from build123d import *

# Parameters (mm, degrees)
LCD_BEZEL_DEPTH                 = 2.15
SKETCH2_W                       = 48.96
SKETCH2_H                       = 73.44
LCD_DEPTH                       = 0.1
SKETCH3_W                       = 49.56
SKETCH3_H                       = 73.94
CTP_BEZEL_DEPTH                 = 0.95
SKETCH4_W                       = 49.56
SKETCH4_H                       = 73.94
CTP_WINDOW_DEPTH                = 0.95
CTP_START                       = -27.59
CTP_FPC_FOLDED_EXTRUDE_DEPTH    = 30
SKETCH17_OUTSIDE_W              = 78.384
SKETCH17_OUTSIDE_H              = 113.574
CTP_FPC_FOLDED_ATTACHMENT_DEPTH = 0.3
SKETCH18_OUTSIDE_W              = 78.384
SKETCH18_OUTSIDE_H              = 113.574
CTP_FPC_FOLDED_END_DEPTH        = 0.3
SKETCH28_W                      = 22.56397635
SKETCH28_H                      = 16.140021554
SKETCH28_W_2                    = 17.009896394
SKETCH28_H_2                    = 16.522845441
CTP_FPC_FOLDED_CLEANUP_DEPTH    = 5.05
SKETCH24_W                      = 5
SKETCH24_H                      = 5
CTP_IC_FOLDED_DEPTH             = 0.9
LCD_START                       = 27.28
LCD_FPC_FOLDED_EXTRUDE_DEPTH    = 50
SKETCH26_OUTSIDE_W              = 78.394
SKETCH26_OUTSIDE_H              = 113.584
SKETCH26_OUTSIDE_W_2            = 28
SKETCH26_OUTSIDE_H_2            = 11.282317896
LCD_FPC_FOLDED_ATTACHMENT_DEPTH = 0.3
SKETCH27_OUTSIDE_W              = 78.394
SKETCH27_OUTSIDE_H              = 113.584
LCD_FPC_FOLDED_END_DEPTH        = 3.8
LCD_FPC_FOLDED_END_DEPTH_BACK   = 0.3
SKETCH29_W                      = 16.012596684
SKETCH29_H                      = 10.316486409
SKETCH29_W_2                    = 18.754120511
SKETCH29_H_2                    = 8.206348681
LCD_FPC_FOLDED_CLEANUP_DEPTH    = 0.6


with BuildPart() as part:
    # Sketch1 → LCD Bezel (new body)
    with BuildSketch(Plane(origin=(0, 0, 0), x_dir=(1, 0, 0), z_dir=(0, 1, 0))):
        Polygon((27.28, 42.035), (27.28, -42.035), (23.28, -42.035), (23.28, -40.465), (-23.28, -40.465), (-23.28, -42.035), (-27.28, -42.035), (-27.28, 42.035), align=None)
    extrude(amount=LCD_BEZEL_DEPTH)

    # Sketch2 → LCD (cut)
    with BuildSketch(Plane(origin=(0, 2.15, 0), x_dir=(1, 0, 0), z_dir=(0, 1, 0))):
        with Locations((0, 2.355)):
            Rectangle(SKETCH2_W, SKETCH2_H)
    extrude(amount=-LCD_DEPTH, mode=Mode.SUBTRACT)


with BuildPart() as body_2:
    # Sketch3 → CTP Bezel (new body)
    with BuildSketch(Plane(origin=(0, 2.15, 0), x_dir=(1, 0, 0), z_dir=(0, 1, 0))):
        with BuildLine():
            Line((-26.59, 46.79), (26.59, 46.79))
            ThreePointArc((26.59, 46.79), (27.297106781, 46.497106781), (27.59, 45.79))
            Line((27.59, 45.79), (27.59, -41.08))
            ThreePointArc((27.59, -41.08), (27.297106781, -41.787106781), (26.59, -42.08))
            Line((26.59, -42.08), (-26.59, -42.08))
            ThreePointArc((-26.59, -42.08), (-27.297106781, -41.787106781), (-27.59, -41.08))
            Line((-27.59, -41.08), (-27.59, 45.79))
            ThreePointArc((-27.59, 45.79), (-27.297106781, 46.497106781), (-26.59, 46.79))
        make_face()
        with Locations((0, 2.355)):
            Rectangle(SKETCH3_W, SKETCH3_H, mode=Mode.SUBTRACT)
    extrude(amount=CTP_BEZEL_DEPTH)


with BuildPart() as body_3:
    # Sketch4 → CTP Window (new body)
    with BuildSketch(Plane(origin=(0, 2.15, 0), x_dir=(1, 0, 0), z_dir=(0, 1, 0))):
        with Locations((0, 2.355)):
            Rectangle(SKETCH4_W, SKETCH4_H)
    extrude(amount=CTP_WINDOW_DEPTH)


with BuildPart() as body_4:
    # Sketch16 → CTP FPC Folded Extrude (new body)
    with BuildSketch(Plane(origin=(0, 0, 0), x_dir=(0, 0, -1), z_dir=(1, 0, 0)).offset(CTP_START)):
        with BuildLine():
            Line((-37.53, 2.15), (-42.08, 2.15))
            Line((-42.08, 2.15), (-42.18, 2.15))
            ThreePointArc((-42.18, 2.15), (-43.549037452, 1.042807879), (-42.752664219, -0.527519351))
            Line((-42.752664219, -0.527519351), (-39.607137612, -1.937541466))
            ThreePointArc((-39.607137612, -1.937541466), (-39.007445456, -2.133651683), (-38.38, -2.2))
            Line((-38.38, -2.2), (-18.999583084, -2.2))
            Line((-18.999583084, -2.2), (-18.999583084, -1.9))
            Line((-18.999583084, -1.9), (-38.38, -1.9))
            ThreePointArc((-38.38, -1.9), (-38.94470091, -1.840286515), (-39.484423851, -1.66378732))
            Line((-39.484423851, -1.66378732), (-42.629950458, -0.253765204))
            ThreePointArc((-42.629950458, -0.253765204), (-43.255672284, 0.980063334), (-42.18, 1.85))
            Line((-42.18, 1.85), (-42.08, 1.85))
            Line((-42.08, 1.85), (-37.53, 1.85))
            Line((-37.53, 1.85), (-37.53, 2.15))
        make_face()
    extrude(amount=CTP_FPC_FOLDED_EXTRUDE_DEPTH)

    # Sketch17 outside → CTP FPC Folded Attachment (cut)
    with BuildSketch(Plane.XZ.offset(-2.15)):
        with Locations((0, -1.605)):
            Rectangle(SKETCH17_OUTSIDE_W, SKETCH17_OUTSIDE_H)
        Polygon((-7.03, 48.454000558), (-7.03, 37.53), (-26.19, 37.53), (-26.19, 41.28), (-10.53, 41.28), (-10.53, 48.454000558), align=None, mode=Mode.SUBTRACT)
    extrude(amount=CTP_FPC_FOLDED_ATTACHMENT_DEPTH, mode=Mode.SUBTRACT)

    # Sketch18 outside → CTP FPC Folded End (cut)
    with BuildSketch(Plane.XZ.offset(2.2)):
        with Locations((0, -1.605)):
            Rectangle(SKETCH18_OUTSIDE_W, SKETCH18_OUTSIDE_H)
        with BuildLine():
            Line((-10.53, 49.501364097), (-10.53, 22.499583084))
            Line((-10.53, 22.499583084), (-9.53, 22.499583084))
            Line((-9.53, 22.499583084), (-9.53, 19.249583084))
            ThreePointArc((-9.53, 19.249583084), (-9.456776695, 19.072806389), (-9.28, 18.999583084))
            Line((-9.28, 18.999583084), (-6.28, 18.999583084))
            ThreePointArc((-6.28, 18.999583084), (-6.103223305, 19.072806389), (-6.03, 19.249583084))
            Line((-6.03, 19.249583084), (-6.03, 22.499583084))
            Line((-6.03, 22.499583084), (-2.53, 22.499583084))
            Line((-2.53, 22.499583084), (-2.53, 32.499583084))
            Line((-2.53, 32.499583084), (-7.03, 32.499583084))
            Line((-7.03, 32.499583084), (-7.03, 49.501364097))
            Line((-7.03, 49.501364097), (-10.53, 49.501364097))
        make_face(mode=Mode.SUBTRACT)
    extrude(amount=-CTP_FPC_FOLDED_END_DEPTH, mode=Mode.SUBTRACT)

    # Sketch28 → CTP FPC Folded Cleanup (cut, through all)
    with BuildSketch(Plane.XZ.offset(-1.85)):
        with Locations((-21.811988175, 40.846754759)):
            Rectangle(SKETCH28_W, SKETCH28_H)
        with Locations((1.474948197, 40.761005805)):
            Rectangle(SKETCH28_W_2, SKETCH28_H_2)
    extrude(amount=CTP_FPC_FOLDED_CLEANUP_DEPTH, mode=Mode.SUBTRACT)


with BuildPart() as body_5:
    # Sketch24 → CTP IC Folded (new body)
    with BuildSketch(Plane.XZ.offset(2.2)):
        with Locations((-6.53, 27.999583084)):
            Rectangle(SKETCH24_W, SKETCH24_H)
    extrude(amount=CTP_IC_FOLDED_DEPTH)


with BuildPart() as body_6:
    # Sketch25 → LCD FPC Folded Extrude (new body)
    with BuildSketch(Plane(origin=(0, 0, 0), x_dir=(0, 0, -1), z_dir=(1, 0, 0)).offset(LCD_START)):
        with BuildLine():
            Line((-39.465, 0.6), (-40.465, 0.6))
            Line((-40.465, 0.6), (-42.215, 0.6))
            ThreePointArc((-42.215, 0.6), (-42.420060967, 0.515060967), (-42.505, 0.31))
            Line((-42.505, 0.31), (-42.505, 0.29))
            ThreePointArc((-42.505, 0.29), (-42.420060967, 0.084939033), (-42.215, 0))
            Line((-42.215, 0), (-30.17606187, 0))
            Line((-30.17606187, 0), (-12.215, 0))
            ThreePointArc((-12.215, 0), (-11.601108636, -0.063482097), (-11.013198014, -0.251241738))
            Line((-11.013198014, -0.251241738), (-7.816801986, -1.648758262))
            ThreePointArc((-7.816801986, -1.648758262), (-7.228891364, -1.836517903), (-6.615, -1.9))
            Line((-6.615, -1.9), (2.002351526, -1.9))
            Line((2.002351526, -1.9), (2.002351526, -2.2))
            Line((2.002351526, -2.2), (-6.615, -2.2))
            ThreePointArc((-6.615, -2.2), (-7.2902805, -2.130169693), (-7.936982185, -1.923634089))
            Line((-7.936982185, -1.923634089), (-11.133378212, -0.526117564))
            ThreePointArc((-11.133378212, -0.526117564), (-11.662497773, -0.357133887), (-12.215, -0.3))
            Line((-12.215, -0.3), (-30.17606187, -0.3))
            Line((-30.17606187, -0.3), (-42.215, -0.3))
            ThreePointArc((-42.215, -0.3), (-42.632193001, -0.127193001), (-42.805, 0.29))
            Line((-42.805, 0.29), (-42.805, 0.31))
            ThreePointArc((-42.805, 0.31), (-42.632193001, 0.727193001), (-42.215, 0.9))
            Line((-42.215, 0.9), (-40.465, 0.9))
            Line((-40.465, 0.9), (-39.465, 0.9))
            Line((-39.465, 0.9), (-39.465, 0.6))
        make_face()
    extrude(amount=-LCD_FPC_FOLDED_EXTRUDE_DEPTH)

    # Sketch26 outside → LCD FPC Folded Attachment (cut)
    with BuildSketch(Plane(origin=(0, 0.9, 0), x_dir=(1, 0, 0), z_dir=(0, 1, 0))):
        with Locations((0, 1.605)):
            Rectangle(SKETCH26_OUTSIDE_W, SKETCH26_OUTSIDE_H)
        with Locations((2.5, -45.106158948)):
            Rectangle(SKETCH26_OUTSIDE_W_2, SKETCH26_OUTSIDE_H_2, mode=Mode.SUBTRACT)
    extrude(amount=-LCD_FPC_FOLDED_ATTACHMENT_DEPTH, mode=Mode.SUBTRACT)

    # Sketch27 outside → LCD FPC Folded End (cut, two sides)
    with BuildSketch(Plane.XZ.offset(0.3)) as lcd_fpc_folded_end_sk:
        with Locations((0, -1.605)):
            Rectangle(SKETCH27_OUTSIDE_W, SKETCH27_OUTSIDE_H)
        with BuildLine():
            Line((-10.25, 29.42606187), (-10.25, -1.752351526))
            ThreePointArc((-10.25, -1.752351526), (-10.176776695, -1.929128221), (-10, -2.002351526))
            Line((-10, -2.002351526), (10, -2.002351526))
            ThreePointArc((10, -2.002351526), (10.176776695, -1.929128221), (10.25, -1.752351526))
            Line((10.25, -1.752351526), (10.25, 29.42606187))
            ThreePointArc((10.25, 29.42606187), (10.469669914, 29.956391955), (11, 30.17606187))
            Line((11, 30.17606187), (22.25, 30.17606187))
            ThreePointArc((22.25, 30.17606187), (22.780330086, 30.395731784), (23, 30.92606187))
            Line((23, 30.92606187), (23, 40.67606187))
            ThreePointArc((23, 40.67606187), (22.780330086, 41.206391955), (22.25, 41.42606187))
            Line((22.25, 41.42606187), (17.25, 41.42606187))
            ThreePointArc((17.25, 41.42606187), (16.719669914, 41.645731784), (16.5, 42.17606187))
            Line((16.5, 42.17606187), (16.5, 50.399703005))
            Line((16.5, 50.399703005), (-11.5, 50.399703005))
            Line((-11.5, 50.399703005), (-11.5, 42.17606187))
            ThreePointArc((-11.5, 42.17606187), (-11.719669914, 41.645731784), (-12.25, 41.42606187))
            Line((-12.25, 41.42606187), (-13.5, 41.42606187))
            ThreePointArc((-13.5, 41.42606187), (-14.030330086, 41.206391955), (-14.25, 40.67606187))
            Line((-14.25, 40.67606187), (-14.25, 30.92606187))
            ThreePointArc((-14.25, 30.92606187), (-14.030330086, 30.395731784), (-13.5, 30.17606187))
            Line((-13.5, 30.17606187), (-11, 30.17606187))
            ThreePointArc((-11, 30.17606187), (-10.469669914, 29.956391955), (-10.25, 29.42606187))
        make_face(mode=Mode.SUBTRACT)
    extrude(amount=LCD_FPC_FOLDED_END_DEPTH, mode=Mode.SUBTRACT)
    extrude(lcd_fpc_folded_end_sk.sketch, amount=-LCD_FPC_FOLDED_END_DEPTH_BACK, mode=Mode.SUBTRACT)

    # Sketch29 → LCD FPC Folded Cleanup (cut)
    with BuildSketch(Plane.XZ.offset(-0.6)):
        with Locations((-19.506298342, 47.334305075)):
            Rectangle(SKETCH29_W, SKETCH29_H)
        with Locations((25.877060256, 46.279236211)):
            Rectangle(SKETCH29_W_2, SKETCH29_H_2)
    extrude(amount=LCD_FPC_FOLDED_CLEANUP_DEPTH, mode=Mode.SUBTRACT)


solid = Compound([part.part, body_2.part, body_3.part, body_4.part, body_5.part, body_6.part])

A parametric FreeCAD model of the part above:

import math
import FreeCAD as App
import Part
import Sketcher

V = App.Vector
Q = App.Units.Quantity

doc = App.newDocument("Part")
body = doc.addObject("PartDesign::Body", "Body")

# Sketch on XZ plane
sketch1 = body.newObject("Sketcher::SketchObject", "Sketch")
sketch1.AttachmentSupport = (doc.getObject("XZ_Plane"), [""])
sketch1.MapMode = "FlatFace"
sketch1.addGeometry([
    Part.LineSegment(V(27.28, 42.035, 0), V(27.28, -42.035, 0)),  # 0
    Part.LineSegment(V(27.28, -42.035, 0), V(-27.28, -42.035, 0)),  # 1
    Part.LineSegment(V(-27.28, -42.035, 0), V(-27.28, 42.035, 0)),  # 2
    Part.LineSegment(V(-27.28, 42.035, 0), V(-23.28, 42.035, 0)),  # 3
    Part.LineSegment(V(-23.28, 42.035, 0), V(-23.28, 40.465, 0)),  # 4
    Part.LineSegment(V(-23.28, 40.465, 0), V(23.28, 40.465, 0)),  # 5
    Part.LineSegment(V(23.28, 40.465, 0), V(23.28, 42.035, 0)),  # 6
    Part.LineSegment(V(23.28, 42.035, 0), V(27.28, 42.035, 0)),  # 7
], False)
sketch1.addConstraint([
    Sketcher.Constraint("Coincident", 0, 2, 1, 1),
    Sketcher.Constraint("Coincident", 1, 2, 2, 1),
    Sketcher.Constraint("Coincident", 2, 2, 3, 1),
    Sketcher.Constraint("Coincident", 3, 2, 4, 1),
    Sketcher.Constraint("Coincident", 4, 2, 5, 1),
    Sketcher.Constraint("Coincident", 5, 2, 6, 1),
    Sketcher.Constraint("Coincident", 6, 2, 7, 1),
    Sketcher.Constraint("Coincident", 7, 2, 0, 1),
    Sketcher.Constraint("Vertical", 0),
    Sketcher.Constraint("Horizontal", 1),
    Sketcher.Constraint("Vertical", 2),
    Sketcher.Constraint("Horizontal", 3),
    Sketcher.Constraint("Vertical", 4),
    Sketcher.Constraint("Horizontal", 5),
    Sketcher.Constraint("Vertical", 6),
    Sketcher.Constraint("Horizontal", 7),
    Sketcher.Constraint("Symmetric", 0, 2, 2, 2, -1, 1),
    Sketcher.Constraint("Symmetric", 3, 2, 6, 2, -2),
    Sketcher.Constraint("DistanceX", 3, 1, 3, 2, Q("4 mm")),
    Sketcher.Constraint("DistanceX", 1, 2, 1, 1, Q("54.56 mm")),
    Sketcher.Constraint("DistanceY", 0, 2, 0, 1, Q("84.07 mm")),
    Sketcher.Constraint("DistanceY", 4, 2, 4, 1, Q("1.57 mm")),
])
pad1 = body.newObject("PartDesign::Pad", "Pad")
pad1.Profile = sketch1
pad1.Length = 2.15
pad1.Reversed = True

# Sketch on XZ plane
sketch2 = body.newObject("Sketcher::SketchObject", "Sketch001")
sketch2.AttachmentSupport = (doc.getObject("XZ_Plane"), [""])
sketch2.MapMode = "FlatFace"
sketch2.AttachmentOffset = App.Placement(V(0, 0, -2.15), App.Rotation())
sketch2.addGeometry([
    Part.LineSegment(V(-24.48, -39.075, 0), V(-24.48, 34.365, 0)),
    Part.LineSegment(V(-24.48, 34.365, 0), V(24.48, 34.365, 0)),
    Part.LineSegment(V(24.48, 34.365, 0), V(24.48, -39.075, 0)),
    Part.LineSegment(V(24.48, -39.075, 0), V(-24.48, -39.075, 0)),
], False)
sketch2.addConstraint([
    Sketcher.Constraint("Coincident", 0, 2, 1, 1),
    Sketcher.Constraint("Coincident", 1, 2, 2, 1),
    Sketcher.Constraint("Coincident", 2, 2, 3, 1),
    Sketcher.Constraint("Coincident", 3, 2, 0, 1),
    Sketcher.Constraint("Vertical", 0),
    Sketcher.Constraint("Horizontal", 1),
    Sketcher.Constraint("Vertical", 2),
    Sketcher.Constraint("Horizontal", 3),
    Sketcher.Constraint("DistanceX", 1, 1, 1, 2, Q("48.96 mm")),
    Sketcher.Constraint("DistanceY", 0, 1, 0, 2, Q("73.44 mm")),
    Sketcher.Constraint("DistanceX", 0, 2, -1, 1, Q("24.48 mm")),
    Sketcher.Constraint("DistanceY", -1, 1, 0, 2, Q("34.365 mm")),
])
pocket1 = body.newObject("PartDesign::Pocket", "Pocket")
pocket1.Profile = sketch2
pocket1.Length = 0.1
pocket1.Reversed = True
body2 = doc.addObject("PartDesign::Body", "Body001")

# Sketch on XZ plane
sketch3 = body2.newObject("Sketcher::SketchObject", "Sketch002")
sketch3.AttachmentSupport = (doc.getObject("XZ_Plane001"), [""])
sketch3.MapMode = "FlatFace"
sketch3.AttachmentOffset = App.Placement(V(0, 0, -2.15), App.Rotation())
sketch3.addGeometry([
    Part.LineSegment(V(26.59, -46.79, 0), V(-26.59, -46.79, 0)),  # 0
    Part.ArcOfCircle(Part.Circle(V(-26.59, -45.79, 0), V(0, 0, 1), 1), math.radians(-180), math.radians(-90)),  # 1
    Part.LineSegment(V(-27.59, -45.79, 0), V(-27.59, 41.08, 0)),  # 2
    Part.ArcOfCircle(Part.Circle(V(-26.59, 41.08, 0), V(0, 0, 1), 1), math.radians(90), math.radians(180)),  # 3
    Part.LineSegment(V(-26.59, 42.08, 0), V(26.59, 42.08, 0)),  # 4
    Part.ArcOfCircle(Part.Circle(V(26.59, 41.08, 0), V(0, 0, 1), 1), math.radians(0), math.radians(90)),  # 5
    Part.LineSegment(V(27.59, 41.08, 0), V(27.59, -45.79, 0)),  # 6
    Part.ArcOfCircle(Part.Circle(V(26.59, -45.79, 0), V(0, 0, 1), 1), math.radians(-90), math.radians(0)),  # 7
    Part.LineSegment(V(-24.78, 34.615, 0), V(-24.78, -39.325, 0)),  # 8
    Part.LineSegment(V(-24.78, -39.325, 0), V(24.78, -39.325, 0)),  # 9
    Part.LineSegment(V(24.78, -39.325, 0), V(24.78, 34.615, 0)),  # 10
    Part.LineSegment(V(24.78, 34.615, 0), V(-24.78, 34.615, 0)),  # 11
], False)
sketch3.addConstraint([
    Sketcher.Constraint("Tangent", 0, 2, 1, 2),
    Sketcher.Constraint("Tangent", 1, 1, 2, 1),
    Sketcher.Constraint("Tangent", 2, 2, 3, 2),
    Sketcher.Constraint("Tangent", 3, 1, 4, 1),
    Sketcher.Constraint("Tangent", 4, 2, 5, 2),
    Sketcher.Constraint("Tangent", 5, 1, 6, 1),
    Sketcher.Constraint("Tangent", 6, 2, 7, 2),
    Sketcher.Constraint("Tangent", 7, 1, 0, 1),
    Sketcher.Constraint("Coincident", 8, 2, 9, 1),
    Sketcher.Constraint("Coincident", 9, 2, 10, 1),
    Sketcher.Constraint("Coincident", 10, 2, 11, 1),
    Sketcher.Constraint("Coincident", 11, 2, 8, 1),
    Sketcher.Constraint("Horizontal", 0),
    Sketcher.Constraint("Vertical", 2),
    Sketcher.Constraint("Horizontal", 4),
    Sketcher.Constraint("Vertical", 6),
    Sketcher.Constraint("Vertical", 8),
    Sketcher.Constraint("Horizontal", 9),
    Sketcher.Constraint("Vertical", 10),
    Sketcher.Constraint("Horizontal", 11),
    Sketcher.Constraint("Equal", 1, 3),
    Sketcher.Constraint("Equal", 3, 5),
    Sketcher.Constraint("Equal", 5, 7),
    Sketcher.Constraint("Radius", 1, Q("1 mm")),
    Sketcher.Constraint("DistanceX", 0, 2, 0, 1, Q("53.18 mm")),
    Sketcher.Constraint("DistanceX", 9, 1, 9, 2, Q("49.56 mm")),
    Sketcher.Constraint("DistanceY", 2, 1, 2, 2, Q("86.87 mm")),
    Sketcher.Constraint("DistanceY", 8, 2, 8, 1, Q("73.94 mm")),
    Sketcher.Constraint("DistanceX", 1, 3, -1, 1, Q("26.59 mm")),
    Sketcher.Constraint("DistanceY", 1, 3, -1, 1, Q("45.79 mm")),
    Sketcher.Constraint("DistanceX", 8, 2, -1, 1, Q("24.78 mm")),
    Sketcher.Constraint("DistanceY", 8, 2, -1, 1, Q("39.325 mm")),
])
pad2 = body2.newObject("PartDesign::Pad", "Pad001")
pad2.Profile = sketch3
pad2.Length = 0.95
pad2.Reversed = True
body3 = doc.addObject("PartDesign::Body", "Body002")

# Sketch on XZ plane
sketch4 = body3.newObject("Sketcher::SketchObject", "Sketch003")
sketch4.AttachmentSupport = (doc.getObject("XZ_Plane002"), [""])
sketch4.MapMode = "FlatFace"
sketch4.AttachmentOffset = App.Placement(V(0, 0, -2.15), App.Rotation())
sketch4.addGeometry([
    Part.LineSegment(V(-24.78, -39.325, 0), V(-24.78, 34.615, 0)),
    Part.LineSegment(V(-24.78, 34.615, 0), V(24.78, 34.615, 0)),
    Part.LineSegment(V(24.78, 34.615, 0), V(24.78, -39.325, 0)),
    Part.LineSegment(V(24.78, -39.325, 0), V(-24.78, -39.325, 0)),
], False)
sketch4.addConstraint([
    Sketcher.Constraint("Coincident", 0, 2, 1, 1),
    Sketcher.Constraint("Coincident", 1, 2, 2, 1),
    Sketcher.Constraint("Coincident", 2, 2, 3, 1),
    Sketcher.Constraint("Coincident", 3, 2, 0, 1),
    Sketcher.Constraint("Vertical", 0),
    Sketcher.Constraint("Horizontal", 1),
    Sketcher.Constraint("Vertical", 2),
    Sketcher.Constraint("Horizontal", 3),
    Sketcher.Constraint("DistanceX", 1, 1, 1, 2, Q("49.56 mm")),
    Sketcher.Constraint("DistanceY", 0, 1, 0, 2, Q("73.94 mm")),
    Sketcher.Constraint("DistanceX", 0, 2, -1, 1, Q("24.78 mm")),
    Sketcher.Constraint("DistanceY", -1, 1, 0, 2, Q("34.615 mm")),
])
pad3 = body3.newObject("PartDesign::Pad", "Pad002")
pad3.Profile = sketch4
pad3.Length = 0.95
pad3.Reversed = True
body4 = doc.addObject("PartDesign::Body", "Body003")

# Sketch on YZ plane
sketch5 = body4.newObject("Sketcher::SketchObject", "Sketch004")
sketch5.AttachmentSupport = (doc.getObject("YZ_Plane003"), [""])
sketch5.MapMode = "FlatFace"
sketch5.AttachmentOffset = App.Placement(V(0, 0, -27.59), App.Rotation())
sketch5.addGeometry([
    Part.LineSegment(V(2.15, 37.53, 0), V(2.15, 42.18, 0)),  # 0
    Part.ArcOfCircle(Part.Circle(V(0.75, 42.18, 0), V(0, 0, 1), 1.4), math.radians(0), math.radians(155.855088)),  # 1
    Part.LineSegment(V(-0.527519, 42.752664, 0), V(-1.937541, 39.607138, 0)),  # 2
    Part.ArcOfCircle(Part.Circle(V(0.8, 38.38, 0), V(0, 0, 1), 3), math.radians(155.855088), math.radians(180)),  # 3
    Part.LineSegment(V(-2.2, 38.38, 0), V(-2.2, 18.999583, 0)),  # 4
    Part.LineSegment(V(-2.2, 18.999583, 0), V(-1.9, 18.999583, 0)),  # 5
    Part.LineSegment(V(-1.9, 18.999583, 0), V(-1.9, 38.38, 0)),  # 6
    Part.ArcOfCircle(Part.Circle(V(0.8, 38.38, 0), V(0, 0, 1), 2.7), math.radians(155.855088), math.radians(180)),  # 7
    Part.LineSegment(V(-1.663787, 39.484424, 0), V(-0.253765, 42.62995, 0)),  # 8
    Part.ArcOfCircle(Part.Circle(V(0.75, 42.18, 0), V(0, 0, 1), 1.1), math.radians(0), math.radians(155.855088)),  # 9
    Part.LineSegment(V(1.85, 42.18, 0), V(1.85, 37.53, 0)),  # 10
    Part.LineSegment(V(1.85, 37.53, 0), V(2.15, 37.53, 0)),  # 11
], False)
sketch5.addConstraint([
    Sketcher.Constraint("Tangent", 0, 2, 1, 1),
    Sketcher.Constraint("Tangent", 1, 2, 2, 1),
    Sketcher.Constraint("Tangent", 2, 2, 3, 1),
    Sketcher.Constraint("Tangent", 3, 2, 4, 1),
    Sketcher.Constraint("Coincident", 4, 2, 5, 1),
    Sketcher.Constraint("Coincident", 5, 2, 6, 1),
    Sketcher.Constraint("Tangent", 6, 2, 7, 2),
    Sketcher.Constraint("Tangent", 7, 1, 8, 1),
    Sketcher.Constraint("Tangent", 8, 2, 9, 2),
    Sketcher.Constraint("Tangent", 9, 1, 10, 1),
    Sketcher.Constraint("Coincident", 10, 2, 11, 1),
    Sketcher.Constraint("Coincident", 11, 2, 0, 1),
    Sketcher.Constraint("Vertical", 0),
    Sketcher.Constraint("Vertical", 4),
    Sketcher.Constraint("Horizontal", 5),
    Sketcher.Constraint("Vertical", 6),
    Sketcher.Constraint("Vertical", 10),
    Sketcher.Constraint("Horizontal", 11),
    Sketcher.Constraint("Coincident", 7, 3, 3, 3),
    Sketcher.Constraint("Coincident", 9, 3, 1, 3),
    Sketcher.Constraint("Parallel", 2, 8),
    Sketcher.Constraint("Radius", 3, Q("3 mm")),
    Sketcher.Constraint("Radius", 1, Q("1.4 mm")),
    Sketcher.Constraint("Radius", 7, Q("2.7 mm")),
    Sketcher.Constraint("DistanceY", 0, 1, 0, 2, Q("4.65 mm")),
    Sketcher.Constraint("DistanceX", -1, 1, 3, 3, Q("0.8 mm")),
    Sketcher.Constraint("DistanceY", 3, 3, 1, 3, Q("3.8 mm")),
    Sketcher.Constraint("DistanceX", -1, 1, 1, 3, Q("0.75 mm")),
    Sketcher.Constraint("DistanceY", -1, 1, 1, 3, Q("42.18 mm")),
    Sketcher.Constraint("DistanceY", 4, 2, 4, 1, Q("19.380417 mm")),
])
pad4 = body4.newObject("PartDesign::Pad", "Pad003")
pad4.Profile = sketch5
pad4.Length = 30

# Sketch on XZ plane
sketch6 = body4.newObject("Sketcher::SketchObject", "Sketch005")
sketch6.AttachmentSupport = (doc.getObject("XZ_Plane003"), [""])
sketch6.MapMode = "FlatFace"
sketch6.AttachmentOffset = App.Placement(V(0, 0, -2.15), App.Rotation())
sketch6.addGeometry([
    Part.LineSegment(V(-39.192, 55.182, 0), V(-39.192, -58.392, 0)),  # 0
    Part.LineSegment(V(-39.192, -58.392, 0), V(39.192, -58.392, 0)),  # 1
    Part.LineSegment(V(39.192, -58.392, 0), V(39.192, 55.182, 0)),  # 2
    Part.LineSegment(V(39.192, 55.182, 0), V(-39.192, 55.182, 0)),  # 3
    Part.LineSegment(V(-10.53, 48.454001, 0), V(-7.03, 48.454001, 0)),  # 4
    Part.LineSegment(V(-7.03, 48.454001, 0), V(-7.03, 37.53, 0)),  # 5
    Part.LineSegment(V(-7.03, 37.53, 0), V(-26.19, 37.53, 0)),  # 6
    Part.LineSegment(V(-26.19, 37.53, 0), V(-26.19, 41.28, 0)),  # 7
    Part.LineSegment(V(-26.19, 41.28, 0), V(-10.53, 41.28, 0)),  # 8
    Part.LineSegment(V(-10.53, 41.28, 0), V(-10.53, 48.454001, 0)),  # 9
], False)
sketch6.addConstraint([
    Sketcher.Constraint("Coincident", 0, 2, 1, 1),
    Sketcher.Constraint("Coincident", 1, 2, 2, 1),
    Sketcher.Constraint("Coincident", 2, 2, 3, 1),
    Sketcher.Constraint("Coincident", 3, 2, 0, 1),
    Sketcher.Constraint("Coincident", 4, 2, 5, 1),
    Sketcher.Constraint("Coincident", 5, 2, 6, 1),
    Sketcher.Constraint("Coincident", 6, 2, 7, 1),
    Sketcher.Constraint("Coincident", 7, 2, 8, 1),
    Sketcher.Constraint("Coincident", 8, 2, 9, 1),
    Sketcher.Constraint("Coincident", 9, 2, 4, 1),
    Sketcher.Constraint("Vertical", 0),
    Sketcher.Constraint("Horizontal", 1),
    Sketcher.Constraint("Vertical", 2),
    Sketcher.Constraint("Horizontal", 3),
    Sketcher.Constraint("Horizontal", 4),
    Sketcher.Constraint("Vertical", 5),
    Sketcher.Constraint("Horizontal", 6),
    Sketcher.Constraint("Vertical", 7),
    Sketcher.Constraint("Horizontal", 8),
    Sketcher.Constraint("Vertical", 9),
    Sketcher.Constraint("DistanceX", 4, 1, 4, 2, Q("3.5 mm")),
    Sketcher.Constraint("DistanceX", 6, 2, 6, 1, Q("19.16 mm")),
    Sketcher.Constraint("DistanceY", 7, 1, 7, 2, Q("3.75 mm")),
    Sketcher.Constraint("DistanceX", 1, 1, 1, 2, Q("78.384 mm")),
    Sketcher.Constraint("DistanceY", 0, 2, 0, 1, Q("113.574 mm")),
    Sketcher.Constraint("DistanceY", 5, 2, 5, 1, Q("10.924001 mm")),
    Sketcher.Constraint("DistanceX", 4, 2, -1, 1, Q("7.03 mm")),
    Sketcher.Constraint("DistanceY", -1, 1, 5, 2, Q("37.53 mm")),
    Sketcher.Constraint("DistanceX", 0, 2, -1, 1, Q("39.192 mm")),
    Sketcher.Constraint("DistanceY", 0, 2, -1, 1, Q("58.392 mm")),
])
pocket2 = body4.newObject("PartDesign::Pocket", "Pocket001")
pocket2.Profile = sketch6
pocket2.Length = 0.3
pocket2.Reversed = True

# Sketch on XZ plane
sketch7 = body4.newObject("Sketcher::SketchObject", "Sketch006")
sketch7.AttachmentSupport = (doc.getObject("XZ_Plane003"), [""])
sketch7.MapMode = "FlatFace"
sketch7.AttachmentOffset = App.Placement(V(0, 0, 2.2), App.Rotation())
sketch7.addGeometry([
    Part.LineSegment(V(-39.192, 55.182, 0), V(-39.192, -58.392, 0)),  # 0
    Part.LineSegment(V(-39.192, -58.392, 0), V(39.192, -58.392, 0)),  # 1
    Part.LineSegment(V(39.192, -58.392, 0), V(39.192, 55.182, 0)),  # 2
    Part.LineSegment(V(39.192, 55.182, 0), V(-39.192, 55.182, 0)),  # 3
    Part.LineSegment(V(-10.53, 22.499583, 0), V(-10.53, 49.501364, 0)),  # 4
    Part.LineSegment(V(-10.53, 49.501364, 0), V(-7.03, 49.501364, 0)),  # 5
    Part.LineSegment(V(-7.03, 49.501364, 0), V(-7.03, 32.499583, 0)),  # 6
    Part.LineSegment(V(-7.03, 32.499583, 0), V(-2.53, 32.499583, 0)),  # 7
    Part.LineSegment(V(-2.53, 32.499583, 0), V(-2.53, 22.499583, 0)),  # 8
    Part.LineSegment(V(-2.53, 22.499583, 0), V(-6.03, 22.499583, 0)),  # 9
    Part.LineSegment(V(-6.03, 22.499583, 0), V(-6.03, 19.249583, 0)),  # 10
    Part.ArcOfCircle(Part.Circle(V(-6.28, 19.249583, 0), V(0, 0, 1), 0.25), math.radians(-90), math.radians(0)),  # 11
    Part.LineSegment(V(-6.28, 18.999583, 0), V(-9.28, 18.999583, 0)),  # 12
    Part.ArcOfCircle(Part.Circle(V(-9.28, 19.249583, 0), V(0, 0, 1), 0.25), math.radians(-180), math.radians(-90)),  # 13
    Part.LineSegment(V(-9.53, 19.249583, 0), V(-9.53, 22.499583, 0)),  # 14
    Part.LineSegment(V(-9.53, 22.499583, 0), V(-10.53, 22.499583, 0)),  # 15
], False)
sketch7.addConstraint([
    Sketcher.Constraint("Coincident", 0, 2, 1, 1),
    Sketcher.Constraint("Coincident", 1, 2, 2, 1),
    Sketcher.Constraint("Coincident", 2, 2, 3, 1),
    Sketcher.Constraint("Coincident", 3, 2, 0, 1),
    Sketcher.Constraint("Coincident", 4, 2, 5, 1),
    Sketcher.Constraint("Coincident", 5, 2, 6, 1),
    Sketcher.Constraint("Coincident", 6, 2, 7, 1),
    Sketcher.Constraint("Coincident", 7, 2, 8, 1),
    Sketcher.Constraint("Coincident", 8, 2, 9, 1),
    Sketcher.Constraint("Coincident", 9, 2, 10, 1),
    Sketcher.Constraint("Tangent", 10, 2, 11, 2),
    Sketcher.Constraint("Tangent", 11, 1, 12, 1),
    Sketcher.Constraint("Tangent", 12, 2, 13, 2),
    Sketcher.Constraint("Tangent", 13, 1, 14, 1),
    Sketcher.Constraint("Coincident", 14, 2, 15, 1),
    Sketcher.Constraint("Coincident", 15, 2, 4, 1),
    Sketcher.Constraint("Vertical", 0),
    Sketcher.Constraint("Horizontal", 1),
    Sketcher.Constraint("Vertical", 2),
    Sketcher.Constraint("Horizontal", 3),
    Sketcher.Constraint("Vertical", 4),
    Sketcher.Constraint("Horizontal", 5),
    Sketcher.Constraint("Vertical", 6),
    Sketcher.Constraint("Horizontal", 7),
    Sketcher.Constraint("Vertical", 8),
    Sketcher.Constraint("Horizontal", 9),
    Sketcher.Constraint("Vertical", 10),
    Sketcher.Constraint("Horizontal", 12),
    Sketcher.Constraint("Vertical", 14),
    Sketcher.Constraint("Horizontal", 15),
    Sketcher.Constraint("Equal", 11, 13),
    Sketcher.Constraint("Horizontal", 9, 2, 14, 2),
    Sketcher.Constraint("Equal", 5, 9),
    Sketcher.Constraint("DistanceX", 12, 2, 12, 1, Q("3 mm")),
    Sketcher.Constraint("DistanceX", 15, 2, 15, 1, Q("1 mm")),
    Sketcher.Constraint("DistanceY", 8, 2, 8, 1, Q("10 mm")),
    Sketcher.Constraint("Radius", 11, Q("0.25 mm")),
    Sketcher.Constraint("DistanceX", 5, 1, 5, 2, Q("3.5 mm")),
    Sketcher.Constraint("DistanceY", 10, 2, 10, 1, Q("3.25 mm")),
    Sketcher.Constraint("DistanceX", 1, 1, 1, 2, Q("78.384 mm")),
    Sketcher.Constraint("DistanceY", 0, 2, 0, 1, Q("113.574 mm")),
    Sketcher.Constraint("DistanceX", 11, 3, -1, 1, Q("6.28 mm")),
    Sketcher.Constraint("DistanceX", 0, 2, -1, 1, Q("39.192 mm")),
    Sketcher.Constraint("DistanceY", 0, 2, -1, 1, Q("58.392 mm")),
    Sketcher.Constraint("DistanceY", 4, 1, 4, 2, Q("27.001781 mm")),
    Sketcher.Constraint("DistanceY", -1, 1, 11, 3, Q("19.249583 mm")),
])
pocket3 = body4.newObject("PartDesign::Pocket", "Pocket002")
pocket3.Profile = sketch7
pocket3.Length = 0.3

# Sketch on XZ plane
sketch8 = body4.newObject("Sketcher::SketchObject", "Sketch007")
sketch8.AttachmentSupport = (doc.getObject("XZ_Plane003"), [""])
sketch8.MapMode = "FlatFace"
sketch8.AttachmentOffset = App.Placement(V(0, 0, -1.85), App.Rotation())
sketch8.addGeometry([
    Part.LineSegment(V(-33.093976, 48.916766, 0), V(-33.093976, 32.776744, 0)),  # 0
    Part.LineSegment(V(-33.093976, 32.776744, 0), V(-10.53, 32.776744, 0)),  # 1
    Part.LineSegment(V(-10.53, 32.776744, 0), V(-10.53, 48.916766, 0)),  # 2
    Part.LineSegment(V(-10.53, 48.916766, 0), V(-33.093976, 48.916766, 0)),  # 3
    Part.LineSegment(V(-7.03, 49.022429, 0), V(-7.03, 32.499583, 0)),  # 4
    Part.LineSegment(V(-7.03, 32.499583, 0), V(9.979896, 32.499583, 0)),  # 5
    Part.LineSegment(V(9.979896, 32.499583, 0), V(9.979896, 49.022429, 0)),  # 6
    Part.LineSegment(V(9.979896, 49.022429, 0), V(-7.03, 49.022429, 0)),  # 7
], False)
sketch8.addConstraint([
    Sketcher.Constraint("Coincident", 0, 2, 1, 1),
    Sketcher.Constraint("Coincident", 1, 2, 2, 1),
    Sketcher.Constraint("Coincident", 2, 2, 3, 1),
    Sketcher.Constraint("Coincident", 3, 2, 0, 1),
    Sketcher.Constraint("Coincident", 4, 2, 5, 1),
    Sketcher.Constraint("Coincident", 5, 2, 6, 1),
    Sketcher.Constraint("Coincident", 6, 2, 7, 1),
    Sketcher.Constraint("Coincident", 7, 2, 4, 1),
    Sketcher.Constraint("Vertical", 0),
    Sketcher.Constraint("Horizontal", 1),
    Sketcher.Constraint("Vertical", 2),
    Sketcher.Constraint("Horizontal", 3),
    Sketcher.Constraint("Vertical", 4),
    Sketcher.Constraint("Horizontal", 5),
    Sketcher.Constraint("Vertical", 6),
    Sketcher.Constraint("Horizontal", 7),
    Sketcher.Constraint("DistanceX", 1, 2, 4, 2, Q("3.5 mm")),
    Sketcher.Constraint("DistanceX", 1, 2, -1, 1, Q("10.53 mm")),
    Sketcher.Constraint("DistanceY", 0, 2, 0, 1, Q("16.140022 mm")),
    Sketcher.Constraint("DistanceX", 1, 1, 1, 2, Q("22.563976 mm")),
    Sketcher.Constraint("DistanceX", 5, 1, 5, 2, Q("17.009896 mm")),
    Sketcher.Constraint("DistanceY", 4, 2, 4, 1, Q("16.522845 mm")),
    Sketcher.Constraint("DistanceY", -1, 1, 6, 2, Q("49.022429 mm")),
    Sketcher.Constraint("DistanceY", 4, 2, 1, 2, Q("0.277161 mm")),
])
pocket4 = body4.newObject("PartDesign::Pocket", "Pocket003")
pocket4.Profile = sketch8
pocket4.Type = "ThroughAll"
pocket4.Reversed = True
body5 = doc.addObject("PartDesign::Body", "Body004")

# Sketch on XZ plane
sketch9 = body5.newObject("Sketcher::SketchObject", "Sketch008")
sketch9.AttachmentSupport = (doc.getObject("XZ_Plane004"), [""])
sketch9.MapMode = "FlatFace"
sketch9.AttachmentOffset = App.Placement(V(0, 0, 2.2), App.Rotation())
sketch9.addGeometry([
    Part.LineSegment(V(-9.03, 30.499583, 0), V(-9.03, 25.499583, 0)),
    Part.LineSegment(V(-9.03, 25.499583, 0), V(-4.03, 25.499583, 0)),
    Part.LineSegment(V(-4.03, 25.499583, 0), V(-4.03, 30.499583, 0)),
    Part.LineSegment(V(-4.03, 30.499583, 0), V(-9.03, 30.499583, 0)),
], False)
sketch9.addConstraint([
    Sketcher.Constraint("Coincident", 0, 2, 1, 1),
    Sketcher.Constraint("Coincident", 1, 2, 2, 1),
    Sketcher.Constraint("Coincident", 2, 2, 3, 1),
    Sketcher.Constraint("Coincident", 3, 2, 0, 1),
    Sketcher.Constraint("Vertical", 0),
    Sketcher.Constraint("Horizontal", 1),
    Sketcher.Constraint("Vertical", 2),
    Sketcher.Constraint("Horizontal", 3),
    Sketcher.Constraint("Equal", 3, 0),
    Sketcher.Constraint("DistanceX", 1, 1, 1, 2, Q("5 mm")),
    Sketcher.Constraint("DistanceX", 0, 2, -1, 1, Q("9.03 mm")),
    Sketcher.Constraint("DistanceY", -1, 1, 0, 2, Q("25.499583 mm")),
])
pad5 = body5.newObject("PartDesign::Pad", "Pad004")
pad5.Profile = sketch9
pad5.Length = 0.9
body6 = doc.addObject("PartDesign::Body", "Body005")

# Sketch on YZ plane
sketch10 = body6.newObject("Sketcher::SketchObject", "Sketch009")
sketch10.AttachmentSupport = (doc.getObject("YZ_Plane005"), [""])
sketch10.MapMode = "FlatFace"
sketch10.AttachmentOffset = App.Placement(V(0, 0, 27.28), App.Rotation())
sketch10.addGeometry([
    Part.LineSegment(V(0.6, 42.215, 0), V(0.6, 39.465, 0)),  # 0
    Part.LineSegment(V(0.6, 39.465, 0), V(0.9, 39.465, 0)),  # 1
    Part.LineSegment(V(0.9, 39.465, 0), V(0.9, 42.215, 0)),  # 2
    Part.ArcOfCircle(Part.Circle(V(0.31, 42.215, 0), V(0, 0, 1), 0.59), math.radians(0), math.radians(90)),  # 3
    Part.LineSegment(V(0.31, 42.805, 0), V(0.29, 42.805, 0)),  # 4
    Part.ArcOfCircle(Part.Circle(V(0.29, 42.215, 0), V(0, 0, 1), 0.59), math.radians(90), math.radians(180)),  # 5
    Part.LineSegment(V(-0.3, 42.215, 0), V(-0.3, 12.215, 0)),  # 6
    Part.ArcOfCircle(Part.Circle(V(-3, 12.215, 0), V(0, 0, 1), 2.7), math.radians(-23.615734), math.radians(0)),  # 7
    Part.LineSegment(V(-0.526118, 11.133378, 0), V(-1.923634, 7.936982, 0)),  # 8
    Part.ArcOfCircle(Part.Circle(V(1.1, 6.615, 0), V(0, 0, 1), 3.3), math.radians(156.384266), math.radians(180)),  # 9
    Part.LineSegment(V(-2.2, 6.615, 0), V(-2.2, -2.002352, 0)),  # 10
    Part.LineSegment(V(-2.2, -2.002352, 0), V(-1.9, -2.002352, 0)),  # 11
    Part.LineSegment(V(-1.9, -2.002352, 0), V(-1.9, 6.615, 0)),  # 12
    Part.ArcOfCircle(Part.Circle(V(1.1, 6.615, 0), V(0, 0, 1), 3), math.radians(156.384266), math.radians(180)),  # 13
    Part.LineSegment(V(-1.648758, 7.816802, 0), V(-0.251242, 11.013198, 0)),  # 14
    Part.ArcOfCircle(Part.Circle(V(-3, 12.215, 0), V(0, 0, 1), 3), math.radians(-23.615734), math.radians(0)),  # 15
    Part.LineSegment(V(0, 12.215, 0), V(0, 42.215, 0)),  # 16
    Part.ArcOfCircle(Part.Circle(V(0.29, 42.215, 0), V(0, 0, 1), 0.29), math.radians(90), math.radians(180)),  # 17
    Part.LineSegment(V(0.29, 42.505, 0), V(0.31, 42.505, 0)),  # 18
    Part.ArcOfCircle(Part.Circle(V(0.31, 42.215, 0), V(0, 0, 1), 0.29), math.radians(0), math.radians(90)),  # 19
], False)
sketch10.addConstraint([
    Sketcher.Constraint("Coincident", 0, 2, 1, 1),
    Sketcher.Constraint("Coincident", 1, 2, 2, 1),
    Sketcher.Constraint("Tangent", 2, 2, 3, 1),
    Sketcher.Constraint("Tangent", 3, 2, 4, 1),
    Sketcher.Constraint("Tangent", 4, 2, 5, 1),
    Sketcher.Constraint("Tangent", 5, 2, 6, 1),
    Sketcher.Constraint("Tangent", 6, 2, 7, 2),
    Sketcher.Constraint("Tangent", 7, 1, 8, 1),
    Sketcher.Constraint("Tangent", 8, 2, 9, 1),
    Sketcher.Constraint("Tangent", 9, 2, 10, 1),
    Sketcher.Constraint("Coincident", 10, 2, 11, 1),
    Sketcher.Constraint("Coincident", 11, 2, 12, 1),
    Sketcher.Constraint("Tangent", 12, 2, 13, 2),
    Sketcher.Constraint("Tangent", 13, 1, 14, 1),
    Sketcher.Constraint("Tangent", 14, 2, 15, 1),
    Sketcher.Constraint("Tangent", 15, 2, 16, 1),
    Sketcher.Constraint("Tangent", 16, 2, 17, 2),
    Sketcher.Constraint("Tangent", 17, 1, 18, 1),
    Sketcher.Constraint("Tangent", 18, 2, 19, 2),
    Sketcher.Constraint("Tangent", 19, 1, 0, 1),
    Sketcher.Constraint("Vertical", 0),
    Sketcher.Constraint("Horizontal", 1),
    Sketcher.Constraint("Vertical", 2),
    Sketcher.Constraint("Horizontal", 4),
    Sketcher.Constraint("Vertical", 6),
    Sketcher.Constraint("Vertical", 10),
    Sketcher.Constraint("Horizontal", 11),
    Sketcher.Constraint("Vertical", 12),
    Sketcher.Constraint("Vertical", 16),
    Sketcher.Constraint("Horizontal", 18),
    Sketcher.Constraint("Coincident", 13, 3, 9, 3),
    Sketcher.Constraint("Coincident", 15, 3, 7, 3),
    Sketcher.Constraint("Coincident", 17, 3, 5, 3),
    Sketcher.Constraint("Coincident", 19, 3, 3, 3),
    Sketcher.Constraint("Equal", 3, 5),
    Sketcher.Constraint("Equal", 13, 15),
    Sketcher.Constraint("PointOnObject", 15, 2, -2),
    Sketcher.Constraint("Parallel", 8, 14),
    Sketcher.Constraint("Radius", 13, Q("3 mm")),
    Sketcher.Constraint("Radius", 7, Q("2.7 mm")),
    Sketcher.Constraint("DistanceY", 6, 2, 6, 1, Q("30 mm")),
    Sketcher.Constraint("Radius", 3, Q("0.59 mm")),
    Sketcher.Constraint("DistanceX", 4, 2, 4, 1, Q("0.02 mm")),
    Sketcher.Constraint("DistanceY", 0, 2, 0, 1, Q("2.75 mm")),
    Sketcher.Constraint("DistanceX", -1, 1, 9, 3, Q("1.1 mm")),
    Sketcher.Constraint("DistanceY", 9, 3, 7, 3, Q("5.6 mm")),
    Sketcher.Constraint("DistanceY", -1, 1, 3, 3, Q("42.215 mm")),
    Sketcher.Constraint("DistanceY", 10, 2, 10, 1, Q("8.617352 mm")),
])
pad6 = body6.newObject("PartDesign::Pad", "Pad005")
pad6.Profile = sketch10
pad6.Length = 50
pad6.Reversed = True

# Sketch on XZ plane
sketch11 = body6.newObject("Sketcher::SketchObject", "Sketch010")
sketch11.AttachmentSupport = (doc.getObject("XZ_Plane005"), [""])
sketch11.MapMode = "FlatFace"
sketch11.AttachmentOffset = App.Placement(V(0, 0, -0.9), App.Rotation())
sketch11.addGeometry([
    Part.LineSegment(V(-39.197, -58.397, 0), V(-39.197, 55.187, 0)),  # 0
    Part.LineSegment(V(-39.197, 55.187, 0), V(39.197, 55.187, 0)),  # 1
    Part.LineSegment(V(39.197, 55.187, 0), V(39.197, -58.397, 0)),  # 2
    Part.LineSegment(V(39.197, -58.397, 0), V(-39.197, -58.397, 0)),  # 3
    Part.LineSegment(V(16.5, 50.747318, 0), V(-11.5, 50.747318, 0)),  # 4
    Part.LineSegment(V(-11.5, 50.747318, 0), V(-11.5, 39.465, 0)),  # 5
    Part.LineSegment(V(-11.5, 39.465, 0), V(16.5, 39.465, 0)),  # 6
    Part.LineSegment(V(16.5, 39.465, 0), V(16.5, 50.747318, 0)),  # 7
], False)
sketch11.addConstraint([
    Sketcher.Constraint("Coincident", 0, 2, 1, 1),
    Sketcher.Constraint("Coincident", 1, 2, 2, 1),
    Sketcher.Constraint("Coincident", 2, 2, 3, 1),
    Sketcher.Constraint("Coincident", 3, 2, 0, 1),
    Sketcher.Constraint("Coincident", 4, 2, 5, 1),
    Sketcher.Constraint("Coincident", 5, 2, 6, 1),
    Sketcher.Constraint("Coincident", 6, 2, 7, 1),
    Sketcher.Constraint("Coincident", 7, 2, 4, 1),
    Sketcher.Constraint("Vertical", 0),
    Sketcher.Constraint("Horizontal", 1),
    Sketcher.Constraint("Vertical", 2),
    Sketcher.Constraint("Horizontal", 3),
    Sketcher.Constraint("Horizontal", 4),
    Sketcher.Constraint("Vertical", 5),
    Sketcher.Constraint("Horizontal", 6),
    Sketcher.Constraint("Vertical", 7),
    Sketcher.Constraint("DistanceX", 4, 2, 4, 1, Q("28 mm")),
    Sketcher.Constraint("DistanceX", 4, 2, -1, 1, Q("11.5 mm")),
    Sketcher.Constraint("DistanceX", 1, 1, 1, 2, Q("78.394 mm")),
    Sketcher.Constraint("DistanceY", 0, 1, 0, 2, Q("113.584 mm")),
    Sketcher.Constraint("DistanceX", 0, 2, -1, 1, Q("39.197 mm")),
    Sketcher.Constraint("DistanceY", -1, 1, 0, 2, Q("55.187 mm")),
    Sketcher.Constraint("DistanceY", -1, 1, 5, 2, Q("39.465 mm")),
    Sketcher.Constraint("DistanceY", 5, 2, 5, 1, Q("11.282318 mm")),
])
pocket5 = body6.newObject("PartDesign::Pocket", "Pocket004")
pocket5.Profile = sketch11
pocket5.Length = 0.3
pocket5.Reversed = True

# Sketch on XZ plane
sketch12 = body6.newObject("Sketcher::SketchObject", "Sketch011")
sketch12.AttachmentSupport = (doc.getObject("XZ_Plane005"), [""])
sketch12.MapMode = "FlatFace"
sketch12.AttachmentOffset = App.Placement(V(0, 0, 0.3), App.Rotation())
sketch12.addGeometry([
    Part.LineSegment(V(-39.197, 55.187, 0), V(-39.197, -58.397, 0)),  # 0
    Part.LineSegment(V(-39.197, -58.397, 0), V(39.197, -58.397, 0)),  # 1
    Part.LineSegment(V(39.197, -58.397, 0), V(39.197, 55.187, 0)),  # 2
    Part.LineSegment(V(39.197, 55.187, 0), V(-39.197, 55.187, 0)),  # 3
    Part.LineSegment(V(-10.25, -1.752352, 0), V(-10.25, 29.426062, 0)),  # 4
    Part.ArcOfCircle(Part.Circle(V(-11, 29.426062, 0), V(0, 0, 1), 0.75), math.radians(0), math.radians(90)),  # 5
    Part.LineSegment(V(-11, 30.176062, 0), V(-13.5, 30.176062, 0)),  # 6
    Part.ArcOfCircle(Part.Circle(V(-13.5, 30.926062, 0), V(0, 0, 1), 0.75), math.radians(180), math.radians(270)),  # 7
    Part.LineSegment(V(-14.25, 30.926062, 0), V(-14.25, 40.676062, 0)),  # 8
    Part.ArcOfCircle(Part.Circle(V(-13.5, 40.676062, 0), V(0, 0, 1), 0.75), math.radians(90), math.radians(180)),  # 9
    Part.LineSegment(V(-13.5, 41.426062, 0), V(-12.25, 41.426062, 0)),  # 10
    Part.ArcOfCircle(Part.Circle(V(-12.25, 42.176062, 0), V(0, 0, 1), 0.75), math.radians(-90), math.radians(0)),  # 11
    Part.LineSegment(V(-11.5, 42.176062, 0), V(-11.5, 50.399703, 0)),  # 12
    Part.LineSegment(V(-11.5, 50.399703, 0), V(16.5, 50.399703, 0)),  # 13
    Part.LineSegment(V(16.5, 50.399703, 0), V(16.5, 42.176062, 0)),  # 14
    Part.ArcOfCircle(Part.Circle(V(17.25, 42.176062, 0), V(0, 0, 1), 0.75), math.radians(180), math.radians(270)),  # 15
    Part.LineSegment(V(17.25, 41.426062, 0), V(22.25, 41.426062, 0)),  # 16
    Part.ArcOfCircle(Part.Circle(V(22.25, 40.676062, 0), V(0, 0, 1), 0.75), math.radians(0), math.radians(90)),  # 17
    Part.LineSegment(V(23, 40.676062, 0), V(23, 30.926062, 0)),  # 18
    Part.ArcOfCircle(Part.Circle(V(22.25, 30.926062, 0), V(0, 0, 1), 0.75), math.radians(-90), math.radians(0)),  # 19
    Part.LineSegment(V(22.25, 30.176062, 0), V(11, 30.176062, 0)),  # 20
    Part.ArcOfCircle(Part.Circle(V(11, 29.426062, 0), V(0, 0, 1), 0.75), math.radians(90), math.radians(180)),  # 21
    Part.LineSegment(V(10.25, 29.426062, 0), V(10.25, -1.752352, 0)),  # 22
    Part.ArcOfCircle(Part.Circle(V(10, -1.752352, 0), V(0, 0, 1), 0.25), math.radians(-90), math.radians(0)),  # 23
    Part.LineSegment(V(10, -2.002352, 0), V(-10, -2.002352, 0)),  # 24
    Part.ArcOfCircle(Part.Circle(V(-10, -1.752352, 0), V(0, 0, 1), 0.25), math.radians(-180), math.radians(-90)),  # 25
], False)
sketch12.addConstraint([
    Sketcher.Constraint("Coincident", 0, 2, 1, 1),
    Sketcher.Constraint("Coincident", 1, 2, 2, 1),
    Sketcher.Constraint("Coincident", 2, 2, 3, 1),
    Sketcher.Constraint("Coincident", 3, 2, 0, 1),
    Sketcher.Constraint("Tangent", 4, 2, 5, 1),
    Sketcher.Constraint("Tangent", 5, 2, 6, 1),
    Sketcher.Constraint("Tangent", 6, 2, 7, 2),
    Sketcher.Constraint("Tangent", 7, 1, 8, 1),
    Sketcher.Constraint("Tangent", 8, 2, 9, 2),
    Sketcher.Constraint("Tangent", 9, 1, 10, 1),
    Sketcher.Constraint("Tangent", 10, 2, 11, 1),
    Sketcher.Constraint("Tangent", 11, 2, 12, 1),
    Sketcher.Constraint("Coincident", 12, 2, 13, 1),
    Sketcher.Constraint("Coincident", 13, 2, 14, 1),
    Sketcher.Constraint("Tangent", 14, 2, 15, 1),
    Sketcher.Constraint("Tangent", 15, 2, 16, 1),
    Sketcher.Constraint("Tangent", 16, 2, 17, 2),
    Sketcher.Constraint("Tangent", 17, 1, 18, 1),
    Sketcher.Constraint("Tangent", 18, 2, 19, 2),
    Sketcher.Constraint("Tangent", 19, 1, 20, 1),
    Sketcher.Constraint("Tangent", 20, 2, 21, 1),
    Sketcher.Constraint("Tangent", 21, 2, 22, 1),
    Sketcher.Constraint("Tangent", 22, 2, 23, 2),
    Sketcher.Constraint("Tangent", 23, 1, 24, 1),
    Sketcher.Constraint("Tangent", 24, 2, 25, 2),
    Sketcher.Constraint("Tangent", 25, 1, 4, 1),
    Sketcher.Constraint("Vertical", 0),
    Sketcher.Constraint("Horizontal", 1),
    Sketcher.Constraint("Vertical", 2),
    Sketcher.Constraint("Horizontal", 3),
    Sketcher.Constraint("Vertical", 4),
    Sketcher.Constraint("Horizontal", 6),
    Sketcher.Constraint("Vertical", 8),
    Sketcher.Constraint("Horizontal", 10),
    Sketcher.Constraint("Vertical", 12),
    Sketcher.Constraint("Horizontal", 13),
    Sketcher.Constraint("Vertical", 14),
    Sketcher.Constraint("Horizontal", 16),
    Sketcher.Constraint("Vertical", 18),
    Sketcher.Constraint("Horizontal", 20),
    Sketcher.Constraint("Vertical", 22),
    Sketcher.Constraint("Horizontal", 24),
    Sketcher.Constraint("Equal", 5, 7),
    Sketcher.Constraint("Equal", 7, 9),
    Sketcher.Constraint("Equal", 9, 11),
    Sketcher.Constraint("Equal", 11, 15),
    Sketcher.Constraint("Equal", 15, 17),
    Sketcher.Constraint("Equal", 17, 19),
    Sketcher.Constraint("Equal", 19, 21),
    Sketcher.Constraint("Equal", 23, 25),
    Sketcher.Constraint("Symmetric", 5, 3, 21, 3, -2),
    Sketcher.Constraint("Horizontal", 11, 3, 15, 3),
    Sketcher.Constraint("DistanceX", 13, 1, 13, 2, Q("28 mm")),
    Sketcher.Constraint("DistanceX", 16, 1, 16, 2, Q("5 mm")),
    Sketcher.Constraint("DistanceX", 24, 2, 24, 1, Q("20 mm")),
    Sketcher.Constraint("Radius", 5, Q("0.75 mm")),
    Sketcher.Constraint("Radius", 23, Q("0.25 mm")),
    Sketcher.Constraint("DistanceX", 6, 2, 6, 1, Q("2.5 mm")),
    Sketcher.Constraint("DistanceX", -1, 1, 17, 1, Q("23 mm")),
    Sketcher.Constraint("DistanceY", 5, 2, 11, 3, Q("12 mm")),
    Sketcher.Constraint("DistanceX", 1, 1, 1, 2, Q("78.394 mm")),
    Sketcher.Constraint("DistanceY", 0, 2, 0, 1, Q("113.584 mm")),
    Sketcher.Constraint("DistanceX", 0, 2, -1, 1, Q("39.197 mm")),
    Sketcher.Constraint("DistanceY", 0, 2, -1, 1, Q("58.397 mm")),
    Sketcher.Constraint("DistanceY", 12, 1, 12, 2, Q("8.223641 mm")),
    Sketcher.Constraint("DistanceY", 4, 1, 4, 2, Q("31.178413 mm")),
    Sketcher.Constraint("DistanceY", -1, 1, 5, 3, Q("29.426062 mm")),
])
pocket6 = body6.newObject("PartDesign::Pocket", "Pocket005")
pocket6.Profile = sketch12
pocket6.Type = "TwoLengths"
pocket6.Length = 3.8
pocket6.Length2 = 0.3
pocket6.Reversed = True

# Sketch on XZ plane
sketch13 = body6.newObject("Sketcher::SketchObject", "Sketch012")
sketch13.AttachmentSupport = (doc.getObject("XZ_Plane005"), [""])
sketch13.MapMode = "FlatFace"
sketch13.AttachmentOffset = App.Placement(V(0, 0, -0.6), App.Rotation())
sketch13.addGeometry([
    Part.LineSegment(V(-27.512597, 52.492548, 0), V(-27.512597, 42.176062, 0)),  # 0
    Part.LineSegment(V(-27.512597, 42.176062, 0), V(-11.5, 42.176062, 0)),  # 1
    Part.LineSegment(V(-11.5, 42.176062, 0), V(-11.5, 52.492548, 0)),  # 2
    Part.LineSegment(V(-11.5, 52.492548, 0), V(-27.512597, 52.492548, 0)),  # 3
    Part.LineSegment(V(16.5, 50.382411, 0), V(16.5, 42.176062, 0)),  # 4
    Part.LineSegment(V(16.5, 42.176062, 0), V(35.254121, 42.176062, 0)),  # 5
    Part.LineSegment(V(35.254121, 42.176062, 0), V(35.254121, 50.382411, 0)),  # 6
    Part.LineSegment(V(35.254121, 50.382411, 0), V(16.5, 50.382411, 0)),  # 7
], False)
sketch13.addConstraint([
    Sketcher.Constraint("Coincident", 0, 2, 1, 1),
    Sketcher.Constraint("Coincident", 1, 2, 2, 1),
    Sketcher.Constraint("Coincident", 2, 2, 3, 1),
    Sketcher.Constraint("Coincident", 3, 2, 0, 1),
    Sketcher.Constraint("Coincident", 4, 2, 5, 1),
    Sketcher.Constraint("Coincident", 5, 2, 6, 1),
    Sketcher.Constraint("Coincident", 6, 2, 7, 1),
    Sketcher.Constraint("Coincident", 7, 2, 4, 1),
    Sketcher.Constraint("Vertical", 0),
    Sketcher.Constraint("Horizontal", 1),
    Sketcher.Constraint("Vertical", 2),
    Sketcher.Constraint("Horizontal", 3),
    Sketcher.Constraint("Vertical", 4),
    Sketcher.Constraint("Horizontal", 5),
    Sketcher.Constraint("Vertical", 6),
    Sketcher.Constraint("Horizontal", 7),
    Sketcher.Constraint("Horizontal", 1, 2, 4, 2),
    Sketcher.Constraint("DistanceX", 1, 2, 4, 2, Q("28 mm")),
    Sketcher.Constraint("DistanceX", 1, 2, -1, 1, Q("11.5 mm")),
    Sketcher.Constraint("DistanceX", 5, 1, 5, 2, Q("18.754121 mm")),
    Sketcher.Constraint("DistanceY", 4, 2, 4, 1, Q("8.206349 mm")),
    Sketcher.Constraint("DistanceX", 1, 1, 1, 2, Q("16.012597 mm")),
    Sketcher.Constraint("DistanceY", 0, 2, 0, 1, Q("10.316486 mm")),
    Sketcher.Constraint("DistanceY", -1, 1, 0, 2, Q("42.176062 mm")),
])
pocket7 = body6.newObject("PartDesign::Pocket", "Pocket006")
pocket7.Profile = sketch13
pocket7.Length = 0.6
pocket7.Reversed = True

doc.recompute()
